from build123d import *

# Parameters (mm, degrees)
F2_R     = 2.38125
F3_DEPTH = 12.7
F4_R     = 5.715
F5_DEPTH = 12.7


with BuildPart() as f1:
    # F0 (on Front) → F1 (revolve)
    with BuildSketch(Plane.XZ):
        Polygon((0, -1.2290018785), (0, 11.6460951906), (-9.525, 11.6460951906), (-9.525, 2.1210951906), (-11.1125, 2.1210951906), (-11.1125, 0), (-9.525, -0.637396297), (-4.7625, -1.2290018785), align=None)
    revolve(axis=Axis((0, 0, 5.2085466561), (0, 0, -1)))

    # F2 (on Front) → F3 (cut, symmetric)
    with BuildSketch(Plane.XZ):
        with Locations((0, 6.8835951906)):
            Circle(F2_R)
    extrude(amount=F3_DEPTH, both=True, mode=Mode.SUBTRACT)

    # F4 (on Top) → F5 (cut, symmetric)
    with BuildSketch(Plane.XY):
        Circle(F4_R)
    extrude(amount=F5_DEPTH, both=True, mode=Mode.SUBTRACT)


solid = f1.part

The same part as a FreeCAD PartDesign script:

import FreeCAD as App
import Part
import Sketcher
Q = App.Units.Quantity


def add_polygon(sketch, points):
    """Adds a closed chain of lines whose ends are joined by coincident constraints."""
    first, n = sketch.GeometryCount, len(points)
    for a, b in zip(points, points[1:] + points[:1]):
        sketch.addGeometry(Part.LineSegment(App.Vector(*a, 0), App.Vector(*b, 0)), False)
    for i in range(n):
        sketch.addConstraint(Sketcher.Constraint("Coincident", first + i, 2, first + (i + 1) % n, 1))

doc = App.newDocument("Part")
params = doc.addObject("Spreadsheet::Sheet", "Params")
for row, (alias, value) in enumerate([
    ("sketch1_width", "0.375 in"),
    ("sketch1_width2", "0.0625 in"),
    ("sketch1_width3", "0.1875 in"),
    ("revolution_angle", "360 deg"),
    ("sketch2_diameter", "0.1875 in"),
    ("pocket1_length", "1 in"),
    ("sketch3_diameter", "0.45 in"),
    ("pocket2_length", "1 in"),
], start=1):
    params.set(f"A{row}", alias)
    params.set(f"B{row}", "=" + value)
    params.setAlias(f"B{row}", alias)

body = doc.addObject("PartDesign::Body", "Body")

sketch1 = body.newObject("Sketcher::SketchObject", "Sketch")
sketch1.AttachmentSupport = (doc.getObject("XZ_Plane"), [""])
sketch1.MapMode = "FlatFace"
add_polygon(sketch1, [(0, -1.2), (0, 11.6), (-9.5, 11.6), (-9.5, 2.1), (-11.1, 2.1), (-11.1, 0), (-9.5, -0.6), (-4.8, -1.2)])
sketch1.addConstraint(Sketcher.Constraint("Vertical", 0))
sketch1.addConstraint(Sketcher.Constraint("Horizontal", 1))
sketch1.addConstraint(Sketcher.Constraint("Vertical", 2))
sketch1.addConstraint(Sketcher.Constraint("Horizontal", 3))
sketch1.addConstraint(Sketcher.Constraint("Vertical", 4))
sketch1.addConstraint(Sketcher.Constraint("Horizontal", 7))
sketch1.addConstraint(Sketcher.Constraint("PointOnObject", 0, 2, -2))
sketch1.addConstraint(Sketcher.Constraint("PointOnObject", 4, 2, -1))
sketch1.addConstraint(Sketcher.Constraint("Vertical", 2, 2, 5, 2))
sketch1.addConstraint(Sketcher.Constraint("Equal", 1, 2))
sketch1.addConstraint(Sketcher.Constraint("DistanceX", 1, 2, 1, 1, Q("0.375 in")))
sketch1.addConstraint(Sketcher.Constraint("DistanceX", 3, 2, 3, 1, Q("0.0625 in")))
sketch1.addConstraint(Sketcher.Constraint("DistanceX", 7, 1, 7, 2, Q("0.1875 in")))
sketch1.addConstraint(Sketcher.Constraint("DistanceY", 6, 2, -1, 1, 1.229002))
sketch1.addConstraint(Sketcher.Constraint("Distance", 5, 1.710681))
sketch1.addConstraint(Sketcher.Constraint("DistanceY", 0, 1, 0, 2, 12.875097))
sketch1.setExpression("Constraints[18]", "Params.sketch1_width")
sketch1.setExpression("Constraints[19]", "Params.sketch1_width2")
sketch1.setExpression("Constraints[20]", "Params.sketch1_width3")
revolution = body.newObject("PartDesign::Revolution", "Revolution")
revolution.Profile = sketch1
revolution.ReferenceAxis = (sketch1, ["V_Axis"])
revolution.setExpression("Angle", "Params.revolution_angle")

sketch2 = body.newObject("Sketcher::SketchObject", "Sketch001")
sketch2.AttachmentSupport = (doc.getObject("XZ_Plane"), [""])
sketch2.MapMode = "FlatFace"
sketch2.addGeometry(Part.Circle(App.Vector(0, 6.9, 0), App.Vector(0, 0, 1), 2.4), False)
sketch2.addConstraint(Sketcher.Constraint("PointOnObject", 0, 3, -2))
sketch2.addConstraint(Sketcher.Constraint("Diameter", 0, Q("0.1875 in")))
sketch2.addConstraint(Sketcher.Constraint("DistanceY", -1, 1, 0, 3, 6.883595))
sketch2.setExpression("Constraints[1]", "Params.sketch2_diameter")
pocket1 = body.newObject("PartDesign::Pocket", "Pocket")
pocket1.Profile = sketch2
pocket1.setExpression("Length", "Params.pocket1_length")
pocket1.Midplane = True

sketch3 = body.newObject("Sketcher::SketchObject", "Sketch002")
sketch3.AttachmentSupport = (doc.getObject("XY_Plane"), [""])
sketch3.MapMode = "FlatFace"
sketch3.addGeometry(Part.Circle(App.Vector(0, 0, 0), App.Vector(0, 0, 1), 6), False)
sketch3.addConstraint(Sketcher.Constraint("Coincident", 0, 3, -1, 1))
sketch3.addConstraint(Sketcher.Constraint("Diameter", 0, Q("0.45 in")))
sketch3.setExpression("Constraints[1]", "Params.sketch3_diameter")
pocket2 = body.newObject("PartDesign::Pocket", "Pocket001")
pocket2.Profile = sketch3
pocket2.setExpression("Length", "Params.pocket2_length")
pocket2.Midplane = True

doc.recompute()
